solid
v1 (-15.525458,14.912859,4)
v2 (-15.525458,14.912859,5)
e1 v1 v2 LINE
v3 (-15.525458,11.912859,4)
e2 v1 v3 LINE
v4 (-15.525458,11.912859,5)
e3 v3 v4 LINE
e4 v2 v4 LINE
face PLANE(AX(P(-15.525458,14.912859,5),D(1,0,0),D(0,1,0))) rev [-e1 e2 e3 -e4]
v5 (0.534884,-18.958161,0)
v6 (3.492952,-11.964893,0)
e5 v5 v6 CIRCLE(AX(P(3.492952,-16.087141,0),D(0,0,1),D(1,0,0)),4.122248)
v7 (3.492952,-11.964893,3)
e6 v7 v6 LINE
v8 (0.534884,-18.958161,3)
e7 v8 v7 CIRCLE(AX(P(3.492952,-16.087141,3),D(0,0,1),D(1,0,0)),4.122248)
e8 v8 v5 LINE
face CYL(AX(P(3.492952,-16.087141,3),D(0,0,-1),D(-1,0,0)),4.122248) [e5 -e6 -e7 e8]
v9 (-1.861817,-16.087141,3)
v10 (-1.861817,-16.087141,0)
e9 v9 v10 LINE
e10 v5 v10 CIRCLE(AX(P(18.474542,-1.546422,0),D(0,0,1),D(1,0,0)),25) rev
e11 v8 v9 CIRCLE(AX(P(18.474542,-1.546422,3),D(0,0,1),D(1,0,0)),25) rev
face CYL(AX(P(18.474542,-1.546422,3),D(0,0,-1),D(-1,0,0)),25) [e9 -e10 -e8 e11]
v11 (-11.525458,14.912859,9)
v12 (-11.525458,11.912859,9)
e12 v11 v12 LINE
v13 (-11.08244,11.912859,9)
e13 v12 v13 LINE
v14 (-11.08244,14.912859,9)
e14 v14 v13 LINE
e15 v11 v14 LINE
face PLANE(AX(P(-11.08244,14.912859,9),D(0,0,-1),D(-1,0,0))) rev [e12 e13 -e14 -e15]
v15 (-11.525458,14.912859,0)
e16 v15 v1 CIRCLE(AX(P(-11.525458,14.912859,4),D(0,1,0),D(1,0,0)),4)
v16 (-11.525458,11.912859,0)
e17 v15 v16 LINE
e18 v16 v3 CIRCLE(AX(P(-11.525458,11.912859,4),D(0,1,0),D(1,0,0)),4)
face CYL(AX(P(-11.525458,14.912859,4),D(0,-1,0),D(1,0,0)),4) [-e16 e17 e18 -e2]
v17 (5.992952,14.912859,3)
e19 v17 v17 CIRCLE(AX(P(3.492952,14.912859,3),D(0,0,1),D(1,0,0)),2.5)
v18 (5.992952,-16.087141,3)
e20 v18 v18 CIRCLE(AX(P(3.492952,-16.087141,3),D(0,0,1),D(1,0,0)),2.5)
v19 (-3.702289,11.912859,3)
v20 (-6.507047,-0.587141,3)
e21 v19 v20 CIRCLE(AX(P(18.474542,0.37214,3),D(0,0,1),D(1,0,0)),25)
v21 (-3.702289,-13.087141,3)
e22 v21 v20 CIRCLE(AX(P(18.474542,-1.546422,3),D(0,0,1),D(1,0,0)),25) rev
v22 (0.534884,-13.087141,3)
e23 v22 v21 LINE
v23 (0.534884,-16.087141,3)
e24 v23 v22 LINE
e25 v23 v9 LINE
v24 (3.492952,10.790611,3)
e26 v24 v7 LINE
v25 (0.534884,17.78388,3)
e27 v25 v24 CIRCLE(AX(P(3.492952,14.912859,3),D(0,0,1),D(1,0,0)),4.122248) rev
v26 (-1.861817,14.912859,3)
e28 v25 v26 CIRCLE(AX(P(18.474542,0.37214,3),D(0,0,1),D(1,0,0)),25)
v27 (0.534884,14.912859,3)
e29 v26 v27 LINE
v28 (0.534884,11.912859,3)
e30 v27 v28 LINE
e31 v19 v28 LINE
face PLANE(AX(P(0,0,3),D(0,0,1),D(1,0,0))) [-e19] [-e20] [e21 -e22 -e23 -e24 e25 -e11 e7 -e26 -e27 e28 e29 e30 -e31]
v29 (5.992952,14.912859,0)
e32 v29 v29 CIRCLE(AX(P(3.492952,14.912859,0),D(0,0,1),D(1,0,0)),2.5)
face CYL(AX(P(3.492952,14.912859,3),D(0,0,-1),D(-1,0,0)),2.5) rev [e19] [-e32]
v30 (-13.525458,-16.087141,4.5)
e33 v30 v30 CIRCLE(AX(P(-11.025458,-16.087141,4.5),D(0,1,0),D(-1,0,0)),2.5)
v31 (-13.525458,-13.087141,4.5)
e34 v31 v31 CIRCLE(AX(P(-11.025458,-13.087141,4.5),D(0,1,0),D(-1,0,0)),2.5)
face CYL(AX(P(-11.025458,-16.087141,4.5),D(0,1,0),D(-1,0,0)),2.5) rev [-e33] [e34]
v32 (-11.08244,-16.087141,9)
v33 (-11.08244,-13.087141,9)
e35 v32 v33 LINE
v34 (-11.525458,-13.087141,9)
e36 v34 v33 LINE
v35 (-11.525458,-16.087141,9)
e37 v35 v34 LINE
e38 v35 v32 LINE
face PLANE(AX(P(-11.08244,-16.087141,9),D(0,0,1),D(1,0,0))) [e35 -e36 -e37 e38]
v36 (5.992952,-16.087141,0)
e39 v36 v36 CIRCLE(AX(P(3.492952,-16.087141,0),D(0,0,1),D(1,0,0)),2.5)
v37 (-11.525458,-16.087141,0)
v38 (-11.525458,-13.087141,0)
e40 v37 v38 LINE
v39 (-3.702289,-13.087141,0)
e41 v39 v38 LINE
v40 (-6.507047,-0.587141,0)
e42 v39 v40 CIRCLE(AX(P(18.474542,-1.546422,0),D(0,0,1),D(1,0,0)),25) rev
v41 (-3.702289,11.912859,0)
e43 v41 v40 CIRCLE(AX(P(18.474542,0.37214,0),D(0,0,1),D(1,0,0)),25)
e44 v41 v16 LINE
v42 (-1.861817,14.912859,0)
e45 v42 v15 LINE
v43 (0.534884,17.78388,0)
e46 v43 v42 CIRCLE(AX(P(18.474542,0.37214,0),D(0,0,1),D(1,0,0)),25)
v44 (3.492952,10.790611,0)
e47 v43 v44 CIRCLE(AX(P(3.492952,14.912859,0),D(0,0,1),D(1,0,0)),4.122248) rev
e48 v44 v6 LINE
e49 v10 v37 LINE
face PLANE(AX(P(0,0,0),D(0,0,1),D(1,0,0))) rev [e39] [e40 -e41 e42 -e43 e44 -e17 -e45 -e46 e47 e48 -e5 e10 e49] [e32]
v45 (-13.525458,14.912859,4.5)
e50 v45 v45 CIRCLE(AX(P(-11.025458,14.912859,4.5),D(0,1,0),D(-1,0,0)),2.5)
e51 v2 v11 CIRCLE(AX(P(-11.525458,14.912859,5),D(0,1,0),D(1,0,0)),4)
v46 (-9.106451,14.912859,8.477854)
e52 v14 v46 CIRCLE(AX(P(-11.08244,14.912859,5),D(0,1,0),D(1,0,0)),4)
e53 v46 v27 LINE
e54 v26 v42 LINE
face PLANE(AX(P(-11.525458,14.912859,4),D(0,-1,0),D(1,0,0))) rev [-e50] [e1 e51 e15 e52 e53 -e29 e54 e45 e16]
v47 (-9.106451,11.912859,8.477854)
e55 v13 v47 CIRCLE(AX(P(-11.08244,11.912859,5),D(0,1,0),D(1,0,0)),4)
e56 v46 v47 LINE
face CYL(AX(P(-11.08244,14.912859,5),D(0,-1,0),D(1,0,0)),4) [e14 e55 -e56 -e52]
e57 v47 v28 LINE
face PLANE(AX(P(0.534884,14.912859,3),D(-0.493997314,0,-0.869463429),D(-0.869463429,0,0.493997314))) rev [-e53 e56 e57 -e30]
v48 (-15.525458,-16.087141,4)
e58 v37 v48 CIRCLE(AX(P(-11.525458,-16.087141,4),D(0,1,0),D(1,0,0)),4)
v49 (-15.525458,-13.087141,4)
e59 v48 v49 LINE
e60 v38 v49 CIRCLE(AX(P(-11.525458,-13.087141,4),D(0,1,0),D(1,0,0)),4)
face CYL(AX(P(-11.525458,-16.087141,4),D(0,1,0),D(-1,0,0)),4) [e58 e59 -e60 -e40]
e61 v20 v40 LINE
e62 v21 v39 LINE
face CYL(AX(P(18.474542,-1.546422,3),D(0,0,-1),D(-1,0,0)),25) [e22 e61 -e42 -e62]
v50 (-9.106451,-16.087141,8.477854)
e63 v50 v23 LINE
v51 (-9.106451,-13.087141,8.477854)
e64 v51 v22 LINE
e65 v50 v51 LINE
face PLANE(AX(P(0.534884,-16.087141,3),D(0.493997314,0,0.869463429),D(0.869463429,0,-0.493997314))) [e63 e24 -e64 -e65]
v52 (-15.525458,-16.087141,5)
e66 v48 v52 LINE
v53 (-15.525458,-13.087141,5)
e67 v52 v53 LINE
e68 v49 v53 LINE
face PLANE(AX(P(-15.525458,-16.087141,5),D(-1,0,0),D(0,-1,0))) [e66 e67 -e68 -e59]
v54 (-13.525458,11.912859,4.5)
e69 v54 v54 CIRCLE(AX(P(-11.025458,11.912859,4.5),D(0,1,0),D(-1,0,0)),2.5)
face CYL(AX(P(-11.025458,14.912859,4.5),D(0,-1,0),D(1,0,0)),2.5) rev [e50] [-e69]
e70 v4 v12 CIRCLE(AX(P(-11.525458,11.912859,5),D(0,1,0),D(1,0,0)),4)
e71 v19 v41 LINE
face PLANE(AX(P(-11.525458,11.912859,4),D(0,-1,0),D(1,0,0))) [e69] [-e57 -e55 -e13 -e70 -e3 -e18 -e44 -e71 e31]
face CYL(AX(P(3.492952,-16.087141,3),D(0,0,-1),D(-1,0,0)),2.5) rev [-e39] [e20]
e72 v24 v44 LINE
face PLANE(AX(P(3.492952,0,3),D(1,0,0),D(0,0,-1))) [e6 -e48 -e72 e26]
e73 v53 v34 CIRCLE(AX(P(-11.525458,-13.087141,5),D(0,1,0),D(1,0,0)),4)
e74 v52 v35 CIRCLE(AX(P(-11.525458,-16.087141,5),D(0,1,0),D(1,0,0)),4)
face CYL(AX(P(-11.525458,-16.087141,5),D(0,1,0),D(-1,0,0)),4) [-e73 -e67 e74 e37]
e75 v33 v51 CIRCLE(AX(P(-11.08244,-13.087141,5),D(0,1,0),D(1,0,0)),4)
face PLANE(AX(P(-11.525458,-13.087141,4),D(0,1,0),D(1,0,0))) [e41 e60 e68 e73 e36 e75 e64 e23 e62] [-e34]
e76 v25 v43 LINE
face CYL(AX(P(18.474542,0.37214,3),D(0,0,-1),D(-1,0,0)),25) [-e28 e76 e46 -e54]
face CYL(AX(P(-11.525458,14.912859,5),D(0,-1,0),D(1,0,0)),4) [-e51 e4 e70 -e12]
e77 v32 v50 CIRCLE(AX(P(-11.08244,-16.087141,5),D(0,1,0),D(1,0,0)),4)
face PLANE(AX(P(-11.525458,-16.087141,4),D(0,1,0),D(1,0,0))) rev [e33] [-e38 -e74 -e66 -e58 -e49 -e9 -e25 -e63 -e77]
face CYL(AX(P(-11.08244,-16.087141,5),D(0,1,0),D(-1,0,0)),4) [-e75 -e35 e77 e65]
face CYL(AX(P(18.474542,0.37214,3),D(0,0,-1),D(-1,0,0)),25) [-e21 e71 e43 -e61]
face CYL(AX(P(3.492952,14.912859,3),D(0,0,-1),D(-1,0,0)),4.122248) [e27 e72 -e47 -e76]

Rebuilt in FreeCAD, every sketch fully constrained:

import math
import FreeCAD as App
import Part
import Sketcher

doc = App.newDocument("Part")
body = doc.addObject("PartDesign::Body", "Body")

sketch1 = doc.addObject("Sketcher::SketchObject", "Sketch")
body.addObject(sketch1)
sketch1.AttachmentSupport = (doc.XY_Plane, [""])
sketch1.MapMode = "FlatFace"
sketch1.addGeometry([
    Part.LineSegment(App.Vector(3.5, -12, 0), App.Vector(3.5, 10.8, 0)),
    Part.ArcOfCircle(Part.Circle(App.Vector(3.5, 14.9, 0), App.Vector(0, 0, 1), 4.1), math.radians(-90), math.radians(136)),
    Part.ArcOfCircle(Part.Circle(App.Vector(18.5, 0.4, 0), App.Vector(0, 0, 1), 25), math.radians(136), math.radians(182)),
    Part.ArcOfCircle(Part.Circle(App.Vector(18.5, -1.5, 0), App.Vector(0, 0, 1), 25), math.radians(178), math.radians(224)),
    Part.ArcOfCircle(Part.Circle(App.Vector(3.5, -16.1, 0), App.Vector(0, 0, 1), 4.1), math.radians(-136), math.radians(90)),
    Part.Circle(App.Vector(3.5, -16.1, 0), App.Vector(0, 0, 1), 2.5),
    Part.Circle(App.Vector(3.5, 14.9, 0), App.Vector(0, 0, 1), 2.5),
], False)
sketch1.addConstraint([
    Sketcher.Constraint("Coincident", 0, 2, 1, 1),
    Sketcher.Constraint("Tangent", 1, 2, 2, 1),
    Sketcher.Constraint("Coincident", 2, 2, 3, 1),
    Sketcher.Constraint("Tangent", 3, 2, 4, 1),
    Sketcher.Constraint("Coincident", 4, 2, 0, 1),
    Sketcher.Constraint("Vertical", 0),
    Sketcher.Constraint("Coincident", 5, 3, 4, 3),
    Sketcher.Constraint("Coincident", 6, 3, 1, 3),
    Sketcher.Constraint("Equal", 2, 3),
    Sketcher.Constraint("Equal", 1, 4),
    Sketcher.Constraint("Equal", 5, 6),
    Sketcher.Constraint("Vertical", 2, 3, 3, 3),
    Sketcher.Constraint("Vertical", 1, 3, 4, 3),
    Sketcher.Constraint("Vertical", 6, 3, 0, 2),
    Sketcher.Constraint("Diameter", 5, 5.0),
    Sketcher.Constraint("Radius", 2, 25.0),
    Sketcher.Constraint("DistanceY", 4, 3, 1, 3, 31.0),
    Sketcher.Constraint("DistanceX", 2, 2, 0, 2, 10.0),
    Sketcher.Constraint("Radius", 1, 4.122248),
    Sketcher.Constraint("DistanceY", -1, 1, 1, 3, 14.912859),
    Sketcher.Constraint("DistanceX", -1, 1, 2, 3, 18.474542),
])
pad1 = doc.addObject("PartDesign::Pad", "Pad")
body.addObject(pad1)
pad1.Profile = sketch1
pad1.Length = 3

sketch2 = doc.addObject("Sketcher::SketchObject", "Sketch001")
body.addObject(sketch2)
sketch2.AttachmentSupport = (doc.XZ_Plane, [""])
sketch2.MapMode = "FlatFace"
sketch2.AttachmentOffset = App.Placement(App.Vector(0, 0, -11.912859), App.Rotation())
sketch2.addGeometry([
    Part.LineSegment(App.Vector(-9.11, 8.48, 0), App.Vector(0.53, 3, 0)),
    Part.LineSegment(App.Vector(0.53, 3, 0), App.Vector(0.53, 0, 0)),
    Part.LineSegment(App.Vector(0.53, 0, 0), App.Vector(-11.53, 0, 0)),
    Part.ArcOfCircle(Part.Circle(App.Vector(-11.53, 4, 0), App.Vector(0, 0, 1), 4), math.radians(-180), math.radians(-90)),
    Part.LineSegment(App.Vector(-15.53, 4, 0), App.Vector(-15.53, 5, 0)),
    Part.ArcOfCircle(Part.Circle(App.Vector(-11.53, 5, 0), App.Vector(0, 0, 1), 4), math.radians(90), math.radians(180)),
    Part.LineSegment(App.Vector(-11.53, 9, 0), App.Vector(-11.08, 9, 0)),
    Part.ArcOfCircle(Part.Circle(App.Vector(-11.08, 5, 0), App.Vector(0, 0, 1), 4), math.radians(60), math.radians(90)),
    Part.Circle(App.Vector(-11.03, 4.5, 0), App.Vector(0, 0, 1), 2.5),
], False)
sketch2.addConstraint([
    Sketcher.Constraint("Coincident", 0, 2, 1, 1),
    Sketcher.Constraint("Coincident", 1, 2, 2, 1),
    Sketcher.Constraint("Tangent", 2, 2, 3, 2),
    Sketcher.Constraint("Tangent", 3, 1, 4, 1),
    Sketcher.Constraint("Tangent", 4, 2, 5, 2),
    Sketcher.Constraint("Tangent", 5, 1, 6, 1),
    Sketcher.Constraint("Tangent", 6, 2, 7, 2),
    Sketcher.Constraint("Tangent", 7, 1, 0, 1),
    Sketcher.Constraint("Vertical", 1),
    Sketcher.Constraint("Horizontal", 2),
    Sketcher.Constraint("Vertical", 4),
    Sketcher.Constraint("Horizontal", 6),
    Sketcher.Constraint("Equal", 3, 5),
    Sketcher.Constraint("Equal", 5, 7),
    Sketcher.Constraint("PointOnObject", 1, 2, -1),
    Sketcher.Constraint("Diameter", 8, 5.0),
    Sketcher.Constraint("Radius", 3, 4.0),
    Sketcher.Constraint("DistanceY", 1, 2, 1, 1, 3.0),
    Sketcher.Constraint("DistanceY", 4, 1, 4, 2, 1.0),
    Sketcher.Constraint("DistanceY", -1, 1, 8, 3, 4.5),
    Sketcher.Constraint("DistanceX", 3, 3, 8, 3, 0.5),
    Sketcher.Constraint("DistanceX", 2, 2, 2, 1, 12.060342),
    Sketcher.Constraint("DistanceX", 6, 1, 6, 2, 0.443018),
    Sketcher.Constraint("DistanceX", 3, 3, -1, 1, 11.525458),
])
pad2 = doc.addObject("PartDesign::Pad", "Pad001")
body.addObject(pad2)
pad2.Profile = sketch2
pad2.Length = 3
pad2.Reversed = True
doc.recompute()

datumplane = doc.addObject("PartDesign::Plane", "DatumPlane")
body.addObject(datumplane)
datumplane.AttachmentSupport = (doc.XZ_Plane, [""])
datumplane.MapMode = "FlatFace"
datumplane.AttachmentOffset = App.Placement(App.Vector(0, 0, 0.587141), App.Rotation())
mirrored = doc.addObject("PartDesign::Mirrored", "Mirrored")
body.addObject(mirrored)
mirrored.Originals = [pad2]
mirrored.MirrorPlane = (datumplane, [""])
body.Tip = mirrored

doc.recompute()
